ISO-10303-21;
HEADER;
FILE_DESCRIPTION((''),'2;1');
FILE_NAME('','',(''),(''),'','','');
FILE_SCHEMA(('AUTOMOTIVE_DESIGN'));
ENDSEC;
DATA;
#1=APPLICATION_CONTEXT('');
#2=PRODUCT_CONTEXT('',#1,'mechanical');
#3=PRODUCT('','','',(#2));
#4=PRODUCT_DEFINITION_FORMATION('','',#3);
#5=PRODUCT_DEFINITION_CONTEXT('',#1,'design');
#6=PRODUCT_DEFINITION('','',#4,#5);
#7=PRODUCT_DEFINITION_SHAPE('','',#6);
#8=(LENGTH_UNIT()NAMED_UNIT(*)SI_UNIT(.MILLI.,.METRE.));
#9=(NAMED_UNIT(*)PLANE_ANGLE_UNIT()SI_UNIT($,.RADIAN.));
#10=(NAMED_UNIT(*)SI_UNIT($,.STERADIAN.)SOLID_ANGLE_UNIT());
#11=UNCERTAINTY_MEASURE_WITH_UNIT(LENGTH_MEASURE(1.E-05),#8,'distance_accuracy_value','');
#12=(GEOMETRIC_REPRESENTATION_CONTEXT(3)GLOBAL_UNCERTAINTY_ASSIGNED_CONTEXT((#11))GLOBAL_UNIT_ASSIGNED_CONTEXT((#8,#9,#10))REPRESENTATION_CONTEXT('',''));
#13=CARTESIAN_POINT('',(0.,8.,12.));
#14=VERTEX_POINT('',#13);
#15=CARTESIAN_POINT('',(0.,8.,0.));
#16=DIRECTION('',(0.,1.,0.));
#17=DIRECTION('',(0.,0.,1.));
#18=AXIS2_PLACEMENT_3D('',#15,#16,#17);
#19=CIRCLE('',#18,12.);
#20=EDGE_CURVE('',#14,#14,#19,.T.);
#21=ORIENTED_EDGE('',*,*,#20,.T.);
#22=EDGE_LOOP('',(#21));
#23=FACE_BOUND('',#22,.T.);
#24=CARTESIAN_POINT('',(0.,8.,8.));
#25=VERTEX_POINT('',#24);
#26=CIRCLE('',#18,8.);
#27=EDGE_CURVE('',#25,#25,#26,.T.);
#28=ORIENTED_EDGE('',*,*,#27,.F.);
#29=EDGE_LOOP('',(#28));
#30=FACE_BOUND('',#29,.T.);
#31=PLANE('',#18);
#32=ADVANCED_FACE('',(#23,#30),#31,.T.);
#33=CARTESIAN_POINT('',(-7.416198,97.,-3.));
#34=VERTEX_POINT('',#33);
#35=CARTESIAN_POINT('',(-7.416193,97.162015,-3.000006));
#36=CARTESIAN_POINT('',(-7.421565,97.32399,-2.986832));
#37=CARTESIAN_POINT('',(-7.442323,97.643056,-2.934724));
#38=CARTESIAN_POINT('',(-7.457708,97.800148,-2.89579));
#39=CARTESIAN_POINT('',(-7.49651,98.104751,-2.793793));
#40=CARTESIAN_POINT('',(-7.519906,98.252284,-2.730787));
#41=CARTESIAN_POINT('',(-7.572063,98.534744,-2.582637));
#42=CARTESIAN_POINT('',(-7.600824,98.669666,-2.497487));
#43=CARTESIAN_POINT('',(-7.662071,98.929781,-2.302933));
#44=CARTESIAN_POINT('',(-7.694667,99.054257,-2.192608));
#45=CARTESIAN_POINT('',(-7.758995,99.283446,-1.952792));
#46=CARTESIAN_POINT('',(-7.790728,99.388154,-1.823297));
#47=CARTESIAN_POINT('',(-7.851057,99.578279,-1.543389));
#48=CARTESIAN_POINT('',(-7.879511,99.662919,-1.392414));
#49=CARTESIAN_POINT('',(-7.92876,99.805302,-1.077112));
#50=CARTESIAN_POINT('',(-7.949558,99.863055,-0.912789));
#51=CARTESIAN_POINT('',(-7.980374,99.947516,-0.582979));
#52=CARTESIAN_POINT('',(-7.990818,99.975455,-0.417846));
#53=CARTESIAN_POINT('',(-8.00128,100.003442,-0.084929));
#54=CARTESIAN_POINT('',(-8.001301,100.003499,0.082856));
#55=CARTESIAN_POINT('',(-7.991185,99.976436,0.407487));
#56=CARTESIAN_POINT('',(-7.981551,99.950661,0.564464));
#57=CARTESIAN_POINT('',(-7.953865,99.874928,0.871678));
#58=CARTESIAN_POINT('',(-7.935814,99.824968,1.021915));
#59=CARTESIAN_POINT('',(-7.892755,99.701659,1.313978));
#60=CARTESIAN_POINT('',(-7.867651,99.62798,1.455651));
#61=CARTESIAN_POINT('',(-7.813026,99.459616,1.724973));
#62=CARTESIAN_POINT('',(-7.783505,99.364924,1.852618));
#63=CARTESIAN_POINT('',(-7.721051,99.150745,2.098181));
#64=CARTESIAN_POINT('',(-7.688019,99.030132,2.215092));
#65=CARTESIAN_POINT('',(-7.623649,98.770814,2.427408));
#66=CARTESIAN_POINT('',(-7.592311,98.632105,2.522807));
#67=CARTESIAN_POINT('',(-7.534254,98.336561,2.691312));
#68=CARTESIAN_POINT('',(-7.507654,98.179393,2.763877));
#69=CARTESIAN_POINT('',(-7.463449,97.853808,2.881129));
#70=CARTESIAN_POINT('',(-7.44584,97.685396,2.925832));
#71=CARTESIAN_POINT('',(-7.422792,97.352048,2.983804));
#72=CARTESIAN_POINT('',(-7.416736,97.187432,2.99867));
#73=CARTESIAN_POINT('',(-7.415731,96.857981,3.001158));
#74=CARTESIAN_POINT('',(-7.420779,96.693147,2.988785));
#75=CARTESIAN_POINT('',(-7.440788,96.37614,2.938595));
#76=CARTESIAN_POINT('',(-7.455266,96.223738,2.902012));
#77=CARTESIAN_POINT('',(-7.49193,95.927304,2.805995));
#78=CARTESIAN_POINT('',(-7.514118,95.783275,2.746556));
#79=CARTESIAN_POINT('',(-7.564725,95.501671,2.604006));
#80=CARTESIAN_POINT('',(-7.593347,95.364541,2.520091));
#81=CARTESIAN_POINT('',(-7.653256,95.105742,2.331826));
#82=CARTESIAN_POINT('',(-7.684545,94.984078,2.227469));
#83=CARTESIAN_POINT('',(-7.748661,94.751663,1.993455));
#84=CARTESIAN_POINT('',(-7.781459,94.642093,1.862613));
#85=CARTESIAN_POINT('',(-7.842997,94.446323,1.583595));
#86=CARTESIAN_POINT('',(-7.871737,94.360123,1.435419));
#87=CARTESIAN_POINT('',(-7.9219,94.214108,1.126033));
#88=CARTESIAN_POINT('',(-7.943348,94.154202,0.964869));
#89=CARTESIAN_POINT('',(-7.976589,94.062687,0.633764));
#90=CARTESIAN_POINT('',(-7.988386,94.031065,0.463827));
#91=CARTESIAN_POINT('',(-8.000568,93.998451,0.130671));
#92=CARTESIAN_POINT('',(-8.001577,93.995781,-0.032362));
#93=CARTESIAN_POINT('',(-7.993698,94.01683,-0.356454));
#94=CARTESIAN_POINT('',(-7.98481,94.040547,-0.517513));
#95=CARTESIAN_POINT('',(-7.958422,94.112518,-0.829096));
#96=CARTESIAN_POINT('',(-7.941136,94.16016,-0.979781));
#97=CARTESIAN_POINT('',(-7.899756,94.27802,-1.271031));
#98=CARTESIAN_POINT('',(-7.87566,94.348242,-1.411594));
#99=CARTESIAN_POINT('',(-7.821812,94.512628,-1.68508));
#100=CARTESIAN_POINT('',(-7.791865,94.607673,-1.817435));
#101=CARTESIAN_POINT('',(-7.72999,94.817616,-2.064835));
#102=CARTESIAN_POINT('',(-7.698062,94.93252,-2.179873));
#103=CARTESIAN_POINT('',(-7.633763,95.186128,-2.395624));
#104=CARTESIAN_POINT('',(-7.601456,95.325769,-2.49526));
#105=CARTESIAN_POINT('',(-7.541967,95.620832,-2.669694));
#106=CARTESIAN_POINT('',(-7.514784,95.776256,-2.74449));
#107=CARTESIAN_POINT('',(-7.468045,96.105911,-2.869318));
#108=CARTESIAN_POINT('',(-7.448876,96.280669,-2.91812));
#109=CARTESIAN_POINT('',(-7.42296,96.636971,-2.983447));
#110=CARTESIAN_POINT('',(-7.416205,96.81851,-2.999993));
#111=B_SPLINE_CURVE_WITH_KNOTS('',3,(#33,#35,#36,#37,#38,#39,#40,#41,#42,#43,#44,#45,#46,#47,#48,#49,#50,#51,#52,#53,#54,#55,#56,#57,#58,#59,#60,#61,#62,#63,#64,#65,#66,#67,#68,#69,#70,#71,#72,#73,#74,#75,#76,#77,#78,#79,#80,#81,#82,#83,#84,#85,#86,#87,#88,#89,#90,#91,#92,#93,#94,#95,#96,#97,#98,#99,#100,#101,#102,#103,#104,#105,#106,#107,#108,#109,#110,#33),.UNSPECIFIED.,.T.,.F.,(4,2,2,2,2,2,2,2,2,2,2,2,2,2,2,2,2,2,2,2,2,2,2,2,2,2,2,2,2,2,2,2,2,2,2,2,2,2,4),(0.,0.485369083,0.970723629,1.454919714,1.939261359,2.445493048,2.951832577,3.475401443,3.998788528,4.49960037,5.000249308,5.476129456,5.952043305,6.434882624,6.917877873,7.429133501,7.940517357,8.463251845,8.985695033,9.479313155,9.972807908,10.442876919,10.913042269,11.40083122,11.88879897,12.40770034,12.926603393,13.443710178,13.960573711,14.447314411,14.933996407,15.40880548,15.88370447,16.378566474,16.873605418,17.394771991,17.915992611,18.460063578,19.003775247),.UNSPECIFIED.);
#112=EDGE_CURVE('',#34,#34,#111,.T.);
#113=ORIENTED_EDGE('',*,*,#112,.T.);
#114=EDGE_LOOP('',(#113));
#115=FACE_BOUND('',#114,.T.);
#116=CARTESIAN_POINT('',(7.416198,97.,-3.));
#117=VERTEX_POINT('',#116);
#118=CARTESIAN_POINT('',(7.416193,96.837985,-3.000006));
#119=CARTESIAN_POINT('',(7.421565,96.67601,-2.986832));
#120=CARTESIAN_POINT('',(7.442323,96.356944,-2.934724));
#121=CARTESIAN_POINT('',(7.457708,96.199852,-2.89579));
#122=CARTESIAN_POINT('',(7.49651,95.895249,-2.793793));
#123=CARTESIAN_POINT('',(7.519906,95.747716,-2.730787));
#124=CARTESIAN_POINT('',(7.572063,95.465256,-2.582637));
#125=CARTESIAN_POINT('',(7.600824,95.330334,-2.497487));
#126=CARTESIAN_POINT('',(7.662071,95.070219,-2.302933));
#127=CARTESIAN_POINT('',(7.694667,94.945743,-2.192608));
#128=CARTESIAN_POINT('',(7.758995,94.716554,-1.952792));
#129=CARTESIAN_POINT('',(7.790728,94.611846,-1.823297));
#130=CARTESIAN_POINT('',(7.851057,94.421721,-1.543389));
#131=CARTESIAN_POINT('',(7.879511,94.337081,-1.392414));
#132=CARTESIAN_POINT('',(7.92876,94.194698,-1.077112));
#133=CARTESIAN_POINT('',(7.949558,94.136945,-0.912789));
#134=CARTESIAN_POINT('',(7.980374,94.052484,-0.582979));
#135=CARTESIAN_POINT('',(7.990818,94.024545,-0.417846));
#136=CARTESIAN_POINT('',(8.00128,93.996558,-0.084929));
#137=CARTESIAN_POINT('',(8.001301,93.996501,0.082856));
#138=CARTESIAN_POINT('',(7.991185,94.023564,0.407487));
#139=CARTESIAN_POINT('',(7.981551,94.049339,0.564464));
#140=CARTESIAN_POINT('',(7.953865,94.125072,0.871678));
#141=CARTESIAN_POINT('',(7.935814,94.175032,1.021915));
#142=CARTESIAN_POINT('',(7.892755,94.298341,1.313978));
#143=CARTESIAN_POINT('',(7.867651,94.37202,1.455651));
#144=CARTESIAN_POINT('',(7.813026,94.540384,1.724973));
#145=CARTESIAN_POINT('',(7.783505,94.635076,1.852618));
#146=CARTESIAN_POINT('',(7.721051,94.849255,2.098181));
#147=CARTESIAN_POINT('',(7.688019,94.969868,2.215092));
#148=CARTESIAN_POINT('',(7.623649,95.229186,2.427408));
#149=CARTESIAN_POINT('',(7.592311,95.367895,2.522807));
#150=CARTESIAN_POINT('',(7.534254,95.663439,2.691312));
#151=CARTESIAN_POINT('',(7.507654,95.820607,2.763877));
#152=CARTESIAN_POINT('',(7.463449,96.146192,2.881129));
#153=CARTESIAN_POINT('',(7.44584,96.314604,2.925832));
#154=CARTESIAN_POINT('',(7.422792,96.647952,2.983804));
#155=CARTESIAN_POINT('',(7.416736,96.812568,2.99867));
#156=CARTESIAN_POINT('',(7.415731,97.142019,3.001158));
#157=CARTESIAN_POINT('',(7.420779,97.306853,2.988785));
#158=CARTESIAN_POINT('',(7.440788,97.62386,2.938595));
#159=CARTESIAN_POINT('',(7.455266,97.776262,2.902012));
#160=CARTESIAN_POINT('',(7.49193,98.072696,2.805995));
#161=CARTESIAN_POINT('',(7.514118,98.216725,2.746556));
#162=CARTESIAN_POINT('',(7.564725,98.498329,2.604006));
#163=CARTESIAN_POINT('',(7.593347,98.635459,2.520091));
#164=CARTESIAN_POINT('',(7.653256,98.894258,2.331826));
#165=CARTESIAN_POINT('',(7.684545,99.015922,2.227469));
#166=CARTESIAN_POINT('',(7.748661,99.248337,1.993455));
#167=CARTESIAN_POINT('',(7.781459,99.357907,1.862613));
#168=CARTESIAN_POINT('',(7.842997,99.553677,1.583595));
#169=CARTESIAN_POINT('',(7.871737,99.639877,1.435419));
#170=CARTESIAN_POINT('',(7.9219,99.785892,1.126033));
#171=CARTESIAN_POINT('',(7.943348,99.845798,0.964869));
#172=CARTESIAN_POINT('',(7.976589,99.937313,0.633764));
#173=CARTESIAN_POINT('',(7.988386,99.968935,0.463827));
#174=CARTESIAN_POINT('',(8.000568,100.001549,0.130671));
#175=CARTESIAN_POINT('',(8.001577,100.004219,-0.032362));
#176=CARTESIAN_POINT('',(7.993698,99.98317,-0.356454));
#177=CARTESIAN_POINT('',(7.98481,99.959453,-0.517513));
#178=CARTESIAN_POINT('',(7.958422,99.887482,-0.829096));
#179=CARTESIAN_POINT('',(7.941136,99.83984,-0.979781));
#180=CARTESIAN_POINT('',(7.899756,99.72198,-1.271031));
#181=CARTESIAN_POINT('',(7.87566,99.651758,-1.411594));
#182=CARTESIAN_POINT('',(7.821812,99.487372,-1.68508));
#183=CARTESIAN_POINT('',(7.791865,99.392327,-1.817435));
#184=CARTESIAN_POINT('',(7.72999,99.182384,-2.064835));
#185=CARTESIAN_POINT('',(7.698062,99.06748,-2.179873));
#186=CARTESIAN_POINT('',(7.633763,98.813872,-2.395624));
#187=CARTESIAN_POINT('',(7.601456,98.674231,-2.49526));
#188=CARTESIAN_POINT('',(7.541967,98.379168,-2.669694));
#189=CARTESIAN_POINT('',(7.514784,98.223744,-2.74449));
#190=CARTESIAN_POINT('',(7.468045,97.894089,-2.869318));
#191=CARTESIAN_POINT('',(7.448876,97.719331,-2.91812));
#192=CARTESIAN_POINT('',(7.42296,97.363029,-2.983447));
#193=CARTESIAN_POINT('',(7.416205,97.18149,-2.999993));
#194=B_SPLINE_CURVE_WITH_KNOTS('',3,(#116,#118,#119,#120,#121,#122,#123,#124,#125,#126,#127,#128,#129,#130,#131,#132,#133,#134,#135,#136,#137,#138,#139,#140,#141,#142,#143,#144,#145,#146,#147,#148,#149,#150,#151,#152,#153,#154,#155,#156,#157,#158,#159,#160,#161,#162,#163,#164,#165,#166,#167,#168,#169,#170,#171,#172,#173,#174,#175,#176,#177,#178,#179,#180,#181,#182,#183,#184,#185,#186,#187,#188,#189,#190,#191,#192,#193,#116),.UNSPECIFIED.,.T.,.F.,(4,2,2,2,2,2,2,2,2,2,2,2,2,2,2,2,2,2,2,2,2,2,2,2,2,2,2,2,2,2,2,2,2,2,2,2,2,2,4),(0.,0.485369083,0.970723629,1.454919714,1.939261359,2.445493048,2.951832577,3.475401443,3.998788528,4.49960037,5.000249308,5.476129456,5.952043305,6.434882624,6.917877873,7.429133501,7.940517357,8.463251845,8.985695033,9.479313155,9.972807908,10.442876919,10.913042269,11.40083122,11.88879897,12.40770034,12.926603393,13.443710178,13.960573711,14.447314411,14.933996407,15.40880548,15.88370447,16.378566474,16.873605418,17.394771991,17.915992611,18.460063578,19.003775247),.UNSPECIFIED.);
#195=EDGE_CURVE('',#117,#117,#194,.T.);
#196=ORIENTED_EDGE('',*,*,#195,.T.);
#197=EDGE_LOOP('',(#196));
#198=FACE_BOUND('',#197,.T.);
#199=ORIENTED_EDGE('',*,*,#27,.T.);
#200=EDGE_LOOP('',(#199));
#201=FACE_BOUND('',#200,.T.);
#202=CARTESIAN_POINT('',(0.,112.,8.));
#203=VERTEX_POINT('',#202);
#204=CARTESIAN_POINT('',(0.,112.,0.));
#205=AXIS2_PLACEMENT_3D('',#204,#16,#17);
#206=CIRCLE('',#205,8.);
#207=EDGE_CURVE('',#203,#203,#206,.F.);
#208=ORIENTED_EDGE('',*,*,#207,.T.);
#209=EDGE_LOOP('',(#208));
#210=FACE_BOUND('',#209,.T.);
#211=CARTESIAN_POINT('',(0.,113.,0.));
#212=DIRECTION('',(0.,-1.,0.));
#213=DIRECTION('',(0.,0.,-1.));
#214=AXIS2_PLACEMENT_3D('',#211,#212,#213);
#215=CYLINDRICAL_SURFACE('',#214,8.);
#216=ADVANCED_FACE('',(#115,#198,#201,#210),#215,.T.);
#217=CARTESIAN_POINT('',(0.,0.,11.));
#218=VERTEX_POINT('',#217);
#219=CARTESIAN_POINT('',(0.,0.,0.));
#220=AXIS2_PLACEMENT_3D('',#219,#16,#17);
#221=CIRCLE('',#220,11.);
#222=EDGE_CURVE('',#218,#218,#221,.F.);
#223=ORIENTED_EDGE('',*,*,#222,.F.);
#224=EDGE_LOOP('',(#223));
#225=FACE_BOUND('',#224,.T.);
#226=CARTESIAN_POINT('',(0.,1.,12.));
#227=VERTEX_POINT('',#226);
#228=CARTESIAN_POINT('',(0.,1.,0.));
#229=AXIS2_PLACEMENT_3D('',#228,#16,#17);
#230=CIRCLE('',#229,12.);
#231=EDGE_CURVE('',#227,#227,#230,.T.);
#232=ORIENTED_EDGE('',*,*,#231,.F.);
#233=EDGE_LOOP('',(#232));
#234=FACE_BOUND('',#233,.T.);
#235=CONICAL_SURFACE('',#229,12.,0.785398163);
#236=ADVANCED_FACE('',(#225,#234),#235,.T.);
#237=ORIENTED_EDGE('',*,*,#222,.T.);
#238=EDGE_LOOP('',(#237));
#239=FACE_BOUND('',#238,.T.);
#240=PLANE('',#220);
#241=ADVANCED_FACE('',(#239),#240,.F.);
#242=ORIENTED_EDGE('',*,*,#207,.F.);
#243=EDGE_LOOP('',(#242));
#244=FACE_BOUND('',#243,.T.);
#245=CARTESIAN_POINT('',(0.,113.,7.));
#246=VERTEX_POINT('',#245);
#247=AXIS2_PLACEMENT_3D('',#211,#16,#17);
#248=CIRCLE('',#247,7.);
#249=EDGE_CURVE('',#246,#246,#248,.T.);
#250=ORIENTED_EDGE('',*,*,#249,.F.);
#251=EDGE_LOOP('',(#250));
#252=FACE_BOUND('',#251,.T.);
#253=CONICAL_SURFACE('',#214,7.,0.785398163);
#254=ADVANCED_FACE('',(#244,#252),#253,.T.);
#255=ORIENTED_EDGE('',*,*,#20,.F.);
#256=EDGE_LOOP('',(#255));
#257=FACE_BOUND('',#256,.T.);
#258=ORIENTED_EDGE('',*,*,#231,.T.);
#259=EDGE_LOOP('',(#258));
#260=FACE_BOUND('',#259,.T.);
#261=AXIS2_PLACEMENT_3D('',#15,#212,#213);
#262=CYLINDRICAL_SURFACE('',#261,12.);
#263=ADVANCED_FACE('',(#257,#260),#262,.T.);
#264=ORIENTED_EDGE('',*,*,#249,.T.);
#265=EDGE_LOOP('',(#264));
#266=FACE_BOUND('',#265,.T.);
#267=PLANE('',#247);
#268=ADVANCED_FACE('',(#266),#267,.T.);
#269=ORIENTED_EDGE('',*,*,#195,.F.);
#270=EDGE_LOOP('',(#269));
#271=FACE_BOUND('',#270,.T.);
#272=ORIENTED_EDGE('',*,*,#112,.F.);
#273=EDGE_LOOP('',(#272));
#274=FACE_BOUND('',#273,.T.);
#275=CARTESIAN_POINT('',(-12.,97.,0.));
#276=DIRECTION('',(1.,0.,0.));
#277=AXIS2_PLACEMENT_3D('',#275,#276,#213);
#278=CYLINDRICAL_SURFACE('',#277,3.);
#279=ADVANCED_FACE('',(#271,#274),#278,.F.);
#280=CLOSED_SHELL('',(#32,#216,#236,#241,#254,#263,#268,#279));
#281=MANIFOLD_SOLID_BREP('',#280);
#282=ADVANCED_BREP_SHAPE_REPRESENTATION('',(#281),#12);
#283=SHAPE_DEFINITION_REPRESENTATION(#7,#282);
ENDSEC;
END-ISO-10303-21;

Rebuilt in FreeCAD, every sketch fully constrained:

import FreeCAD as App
import Part
import Sketcher


def edges_at(feature, points):
    """Names of the edges that pass closest to the given points."""
    edges = feature.Shape.Edges
    near = lambda p: min(range(len(edges)), key=lambda i: edges[i].distToShape(Part.Vertex(*p))[0])
    return sorted({f"Edge{near(p) + 1}" for p in points})

doc = App.newDocument("Part")
params = doc.addObject("Spreadsheet::Sheet", "Params")
for row, (alias, value) in enumerate([
    ("sketch1_diameter", "24 mm"),
    ("pad1_length", "8 mm"),
    ("chamfer_size", "1 mm"),
    ("sketch2_diameter", "16 mm"),
    ("pad2_length", "105 mm"),
    ("chamfer2_size", "1 mm"),
    ("sketch3_diameter", "6 mm"),
], start=1):
    params.set(f"A{row}", alias)
    params.set(f"B{row}", "=" + value)
    params.setAlias(f"B{row}", alias)

body = doc.addObject("PartDesign::Body", "Body")

# Sketch on XZ plane
sketch1 = body.newObject("Sketcher::SketchObject", "Sketch")
sketch1.AttachmentSupport = (doc.getObject("XZ_Plane"), [""])
sketch1.MapMode = "FlatFace"
sketch1.addGeometry(Part.Circle(App.Vector(0, 0, 0), App.Vector(0, 0, 1), 12), False)
sketch1.addConstraint(Sketcher.Constraint("Coincident", 0, 3, -1, 1))
sketch1.addConstraint(Sketcher.Constraint("Diameter", 0, 24.0))
sketch1.setExpression("Constraints[1]", "Params.sketch1_diameter")
pad1 = body.newObject("PartDesign::Pad", "Pad")
pad1.Profile = sketch1
pad1.setExpression("Length", "Params.pad1_length")
pad1.Reversed = True
doc.recompute()

chamfer = body.newObject("PartDesign::Chamfer", "Chamfer")
chamfer.Base = (pad1, edges_at(pad1, [(0, 0, -12)]))
chamfer.setExpression("Size", "Params.chamfer_size")

# Sketch on XZ plane
sketch2 = body.newObject("Sketcher::SketchObject", "Sketch001")
sketch2.AttachmentSupport = (doc.getObject("XZ_Plane"), [""])
sketch2.MapMode = "FlatFace"
sketch2.AttachmentOffset = App.Placement(App.Vector(0, 0, -8), App.Rotation())
sketch2.addGeometry(Part.Circle(App.Vector(0, 0, 0), App.Vector(0, 0, 1), 8), False)
sketch2.addConstraint(Sketcher.Constraint("Coincident", 0, 3, -1, 1))
sketch2.addConstraint(Sketcher.Constraint("Diameter", 0, 16.0))
sketch2.setExpression("Constraints[1]", "Params.sketch2_diameter")
pad2 = body.newObject("PartDesign::Pad", "Pad001")
pad2.Profile = sketch2
pad2.setExpression("Length", "Params.pad2_length")
pad2.Reversed = True
doc.recompute()

chamfer2 = body.newObject("PartDesign::Chamfer", "Chamfer001")
chamfer2.Base = (pad2, edges_at(pad2, [(0, 113, -8)]))
chamfer2.setExpression("Size", "Params.chamfer2_size")

# Sketch on YZ plane
sketch3 = body.newObject("Sketcher::SketchObject", "Sketch002")
sketch3.AttachmentSupport = (doc.getObject("YZ_Plane"), [""])
sketch3.MapMode = "FlatFace"
sketch3.addGeometry(Part.Circle(App.Vector(97, 0, 0), App.Vector(0, 0, 1), 3), False)
sketch3.addConstraint(Sketcher.Constraint("PointOnObject", 0, 3, -1))
sketch3.addConstraint(Sketcher.Constraint("Diameter", 0, 6.0))
sketch3.addConstraint(Sketcher.Constraint("DistanceX", -1, 1, 0, 3, 97.0))
sketch3.setExpression("Constraints[1]", "Params.sketch3_diameter")
pocket1 = body.newObject("PartDesign::Pocket", "Pocket")
pocket1.Profile = sketch3
pocket1.Type = "ThroughAll"
pocket1.Midplane = True

doc.recompute()
